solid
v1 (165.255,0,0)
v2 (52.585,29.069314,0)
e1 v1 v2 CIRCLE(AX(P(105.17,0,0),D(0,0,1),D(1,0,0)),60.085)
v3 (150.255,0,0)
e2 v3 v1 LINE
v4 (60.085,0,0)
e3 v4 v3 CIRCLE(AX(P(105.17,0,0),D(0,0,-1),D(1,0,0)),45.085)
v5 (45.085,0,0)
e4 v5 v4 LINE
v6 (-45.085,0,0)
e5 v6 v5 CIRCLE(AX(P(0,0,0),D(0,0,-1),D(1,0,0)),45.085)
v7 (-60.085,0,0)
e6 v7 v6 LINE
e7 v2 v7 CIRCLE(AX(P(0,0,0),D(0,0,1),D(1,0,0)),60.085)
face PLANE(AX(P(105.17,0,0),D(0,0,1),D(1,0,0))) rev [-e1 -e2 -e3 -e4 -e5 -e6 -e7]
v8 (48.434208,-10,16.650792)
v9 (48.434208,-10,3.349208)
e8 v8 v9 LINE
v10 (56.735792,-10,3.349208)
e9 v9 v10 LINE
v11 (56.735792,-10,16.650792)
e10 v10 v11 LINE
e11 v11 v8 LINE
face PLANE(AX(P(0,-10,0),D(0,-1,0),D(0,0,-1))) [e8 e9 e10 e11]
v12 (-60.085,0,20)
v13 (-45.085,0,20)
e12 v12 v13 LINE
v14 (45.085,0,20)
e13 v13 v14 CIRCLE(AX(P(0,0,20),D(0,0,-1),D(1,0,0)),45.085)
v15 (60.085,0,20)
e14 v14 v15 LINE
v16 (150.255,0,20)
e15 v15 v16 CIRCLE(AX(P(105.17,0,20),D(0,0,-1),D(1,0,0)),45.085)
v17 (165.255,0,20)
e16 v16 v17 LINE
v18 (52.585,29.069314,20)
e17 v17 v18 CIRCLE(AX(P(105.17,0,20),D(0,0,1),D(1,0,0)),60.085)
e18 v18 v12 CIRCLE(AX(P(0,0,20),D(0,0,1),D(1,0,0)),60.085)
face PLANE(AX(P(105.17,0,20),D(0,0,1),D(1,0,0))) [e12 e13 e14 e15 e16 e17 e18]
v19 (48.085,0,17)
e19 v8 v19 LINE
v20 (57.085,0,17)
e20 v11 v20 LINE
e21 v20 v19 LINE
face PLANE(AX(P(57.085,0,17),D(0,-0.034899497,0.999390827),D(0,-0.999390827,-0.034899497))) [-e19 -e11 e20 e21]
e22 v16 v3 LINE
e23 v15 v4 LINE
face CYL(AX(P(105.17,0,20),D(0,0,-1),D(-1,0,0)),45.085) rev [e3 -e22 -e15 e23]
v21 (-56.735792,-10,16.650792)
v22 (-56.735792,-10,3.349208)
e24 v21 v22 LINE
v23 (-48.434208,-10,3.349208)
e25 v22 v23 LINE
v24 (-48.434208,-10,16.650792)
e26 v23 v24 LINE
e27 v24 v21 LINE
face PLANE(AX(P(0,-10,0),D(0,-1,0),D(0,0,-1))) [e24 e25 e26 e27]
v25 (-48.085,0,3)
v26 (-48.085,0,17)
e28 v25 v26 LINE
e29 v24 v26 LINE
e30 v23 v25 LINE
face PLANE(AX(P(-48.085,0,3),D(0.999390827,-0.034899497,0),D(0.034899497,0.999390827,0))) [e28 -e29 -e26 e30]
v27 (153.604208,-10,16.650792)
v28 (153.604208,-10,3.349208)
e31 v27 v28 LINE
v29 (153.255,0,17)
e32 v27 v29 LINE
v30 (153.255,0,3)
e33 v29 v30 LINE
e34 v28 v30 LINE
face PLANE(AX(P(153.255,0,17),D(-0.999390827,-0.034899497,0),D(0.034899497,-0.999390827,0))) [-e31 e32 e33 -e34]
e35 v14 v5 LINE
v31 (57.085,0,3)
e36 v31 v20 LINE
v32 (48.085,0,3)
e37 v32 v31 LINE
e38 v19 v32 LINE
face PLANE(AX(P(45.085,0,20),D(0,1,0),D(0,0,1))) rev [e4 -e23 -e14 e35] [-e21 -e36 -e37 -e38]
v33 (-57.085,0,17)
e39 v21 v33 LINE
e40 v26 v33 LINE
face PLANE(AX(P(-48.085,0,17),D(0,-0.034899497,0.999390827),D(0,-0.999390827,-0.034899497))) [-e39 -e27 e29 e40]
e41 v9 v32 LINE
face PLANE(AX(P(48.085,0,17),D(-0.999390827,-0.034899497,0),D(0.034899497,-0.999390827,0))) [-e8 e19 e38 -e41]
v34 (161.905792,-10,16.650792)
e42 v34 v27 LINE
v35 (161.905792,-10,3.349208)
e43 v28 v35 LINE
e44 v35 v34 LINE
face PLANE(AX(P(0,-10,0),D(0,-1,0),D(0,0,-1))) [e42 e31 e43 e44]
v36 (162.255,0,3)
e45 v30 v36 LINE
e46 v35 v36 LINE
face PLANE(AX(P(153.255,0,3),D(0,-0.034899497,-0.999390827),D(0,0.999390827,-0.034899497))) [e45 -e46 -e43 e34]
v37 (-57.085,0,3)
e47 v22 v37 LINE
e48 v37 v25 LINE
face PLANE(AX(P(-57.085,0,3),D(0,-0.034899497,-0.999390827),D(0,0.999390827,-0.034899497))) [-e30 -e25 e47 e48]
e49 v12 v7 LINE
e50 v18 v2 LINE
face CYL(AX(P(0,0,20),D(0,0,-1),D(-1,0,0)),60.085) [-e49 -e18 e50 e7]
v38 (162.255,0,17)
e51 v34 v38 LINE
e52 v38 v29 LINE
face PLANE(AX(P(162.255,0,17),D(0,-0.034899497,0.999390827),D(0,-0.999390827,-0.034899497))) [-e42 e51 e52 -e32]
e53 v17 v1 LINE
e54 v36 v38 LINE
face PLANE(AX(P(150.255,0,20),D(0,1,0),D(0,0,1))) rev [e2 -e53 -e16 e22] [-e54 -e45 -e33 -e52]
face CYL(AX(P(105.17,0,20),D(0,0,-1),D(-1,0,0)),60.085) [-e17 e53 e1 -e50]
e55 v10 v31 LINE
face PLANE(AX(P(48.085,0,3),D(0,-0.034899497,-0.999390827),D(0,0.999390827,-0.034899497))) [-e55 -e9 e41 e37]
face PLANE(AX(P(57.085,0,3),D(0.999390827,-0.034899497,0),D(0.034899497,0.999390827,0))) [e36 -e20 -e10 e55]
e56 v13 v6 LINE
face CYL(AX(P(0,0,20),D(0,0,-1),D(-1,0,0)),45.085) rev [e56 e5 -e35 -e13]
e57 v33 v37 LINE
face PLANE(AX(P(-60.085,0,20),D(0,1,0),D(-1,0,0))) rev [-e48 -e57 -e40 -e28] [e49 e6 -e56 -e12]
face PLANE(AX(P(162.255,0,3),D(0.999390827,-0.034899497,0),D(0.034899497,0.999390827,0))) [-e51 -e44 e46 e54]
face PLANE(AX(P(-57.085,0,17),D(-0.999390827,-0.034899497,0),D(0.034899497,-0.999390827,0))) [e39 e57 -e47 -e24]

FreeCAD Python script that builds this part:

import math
import FreeCAD as App
import Part
import Sketcher

V = App.Vector

doc = App.newDocument("Part")
body = doc.addObject("PartDesign::Body", "Body")

# Sketch on XY plane
sketch1 = doc.addObject("Sketcher::SketchObject", "Sketch")
body.addObject(sketch1)
sketch1.AttachmentSupport = (doc.XY_Plane, [""])
sketch1.MapMode = "FlatFace"
sketch1.addGeometry([
    Part.LineSegment(V(45, 0, 0), V(60, 0, 0)),  # 0
    Part.ArcOfCircle(Part.Circle(V(105, 0, 0), V(0, 0, 1), 45), math.radians(0), math.radians(180)),  # 1
    Part.LineSegment(V(150, 0, 0), V(165, 0, 0)),  # 2
    Part.ArcOfCircle(Part.Circle(V(105, 0, 0), V(0, 0, 1), 60), math.radians(0), math.radians(151)),  # 3
    Part.ArcOfCircle(Part.Circle(V(0, 0, 0), V(0, 0, 1), 60), math.radians(29), math.radians(180)),  # 4
    Part.LineSegment(V(-60, 0, 0), V(-45, 0, 0)),  # 5
    Part.ArcOfCircle(Part.Circle(V(0, 0, 0), V(0, 0, 1), 45), math.radians(0), math.radians(180)),  # 6
], False)
sketch1.addConstraint([
    Sketcher.Constraint("Coincident", 0, 2, 1, 2),
    Sketcher.Constraint("Coincident", 1, 1, 2, 1),
    Sketcher.Constraint("Coincident", 2, 2, 3, 1),
    Sketcher.Constraint("Coincident", 3, 2, 4, 1),
    Sketcher.Constraint("Coincident", 4, 2, 5, 1),
    Sketcher.Constraint("Coincident", 5, 2, 6, 2),
    Sketcher.Constraint("Coincident", 6, 1, 0, 1),
    Sketcher.Constraint("Horizontal", 0),
    Sketcher.Constraint("Horizontal", 2),
    Sketcher.Constraint("Horizontal", 5),
    Sketcher.Constraint("Coincident", 4, 3, -1, 1),
    Sketcher.Constraint("Coincident", 6, 3, -1, 1),
    Sketcher.Constraint("Coincident", 3, 3, 1, 3),
    Sketcher.Constraint("Equal", 3, 4),
    Sketcher.Constraint("Equal", 1, 6),
    Sketcher.Constraint("Symmetric", 0, 2, 4, 2, -1, 1),
    Sketcher.Constraint("PointOnObject", 1, 3, -1),
    Sketcher.Constraint("PointOnObject", 0, 2, -1),
    Sketcher.Constraint("PointOnObject", 1, 1, -1),
    Sketcher.Constraint("DistanceX", 0, 1, 0, 2, 15.0),
    Sketcher.Constraint("Radius", 1, 45.085),
])
pad1 = doc.addObject("PartDesign::Pad", "Pad")
body.addObject(pad1)
pad1.Profile = sketch1
pad1.Length = 20

# Sketch on XZ plane
sketch2 = doc.addObject("Sketcher::SketchObject", "Sketch001")
body.addObject(sketch2)
sketch2.AttachmentSupport = (doc.XZ_Plane, [""])
sketch2.MapMode = "FlatFace"
sketch2.addGeometry([
    Part.LineSegment(V(-57, 17, 0), V(-57, 3, 0)),  # 0
    Part.LineSegment(V(-57, 3, 0), V(-48, 3, 0)),  # 1
    Part.LineSegment(V(-48, 3, 0), V(-48, 17, 0)),  # 2
    Part.LineSegment(V(-48, 17, 0), V(-57, 17, 0)),  # 3
    Part.LineSegment(V(48, 17, 0), V(48, 3, 0)),  # 4
    Part.LineSegment(V(48, 3, 0), V(57, 3, 0)),  # 5
    Part.LineSegment(V(57, 3, 0), V(57, 17, 0)),  # 6
    Part.LineSegment(V(57, 17, 0), V(48, 17, 0)),  # 7
    Part.LineSegment(V(153, 17, 0), V(153, 3, 0)),  # 8
    Part.LineSegment(V(153, 3, 0), V(162, 3, 0)),  # 9
    Part.LineSegment(V(162, 3, 0), V(162, 17, 0)),  # 10
    Part.LineSegment(V(162, 17, 0), V(153, 17, 0)),  # 11
], False)
sketch2.addConstraint([
    Sketcher.Constraint("Coincident", 0, 2, 1, 1),
    Sketcher.Constraint("Coincident", 1, 2, 2, 1),
    Sketcher.Constraint("Coincident", 2, 2, 3, 1),
    Sketcher.Constraint("Coincident", 3, 2, 0, 1),
    Sketcher.Constraint("Coincident", 4, 2, 5, 1),
    Sketcher.Constraint("Coincident", 5, 2, 6, 1),
    Sketcher.Constraint("Coincident", 6, 2, 7, 1),
    Sketcher.Constraint("Coincident", 7, 2, 4, 1),
    Sketcher.Constraint("Coincident", 8, 2, 9, 1),
    Sketcher.Constraint("Coincident", 9, 2, 10, 1),
    Sketcher.Constraint("Coincident", 10, 2, 11, 1),
    Sketcher.Constraint("Coincident", 11, 2, 8, 1),
    Sketcher.Constraint("Vertical", 0),
    Sketcher.Constraint("Horizontal", 1),
    Sketcher.Constraint("Vertical", 2),
    Sketcher.Constraint("Horizontal", 3),
    Sketcher.Constraint("Vertical", 4),
    Sketcher.Constraint("Horizontal", 5),
    Sketcher.Constraint("Vertical", 6),
    Sketcher.Constraint("Horizontal", 7),
    Sketcher.Constraint("Vertical", 8),
    Sketcher.Constraint("Horizontal", 9),
    Sketcher.Constraint("Vertical", 10),
    Sketcher.Constraint("Horizontal", 11),
    Sketcher.Constraint("Symmetric", 1, 2, 4, 2, -2),
    Sketcher.Constraint("Symmetric", 3, 2, 6, 2, -2),
    Sketcher.Constraint("Horizontal", 5, 2, 8, 2),
    Sketcher.Constraint("Horizontal", 7, 2, 10, 2),
    Sketcher.Constraint("Equal", 7, 9),
    Sketcher.Constraint("DistanceX", 1, 1, 1, 2, 9.0),
    Sketcher.Constraint("DistanceY", 0, 2, 0, 1, 14.0),
    Sketcher.Constraint("DistanceY", -1, 1, 0, 2, 3.0),
    Sketcher.Constraint("DistanceX", 1, 2, 4, 2, 96.17),
    Sketcher.Constraint("DistanceX", 5, 2, 8, 2, 96.17),
])
pad2 = doc.addObject("PartDesign::Pad", "Pad001")
body.addObject(pad2)
pad2.Profile = sketch2
pad2.Length = 10
pad2.TaperAngle = -2

doc.recompute()
